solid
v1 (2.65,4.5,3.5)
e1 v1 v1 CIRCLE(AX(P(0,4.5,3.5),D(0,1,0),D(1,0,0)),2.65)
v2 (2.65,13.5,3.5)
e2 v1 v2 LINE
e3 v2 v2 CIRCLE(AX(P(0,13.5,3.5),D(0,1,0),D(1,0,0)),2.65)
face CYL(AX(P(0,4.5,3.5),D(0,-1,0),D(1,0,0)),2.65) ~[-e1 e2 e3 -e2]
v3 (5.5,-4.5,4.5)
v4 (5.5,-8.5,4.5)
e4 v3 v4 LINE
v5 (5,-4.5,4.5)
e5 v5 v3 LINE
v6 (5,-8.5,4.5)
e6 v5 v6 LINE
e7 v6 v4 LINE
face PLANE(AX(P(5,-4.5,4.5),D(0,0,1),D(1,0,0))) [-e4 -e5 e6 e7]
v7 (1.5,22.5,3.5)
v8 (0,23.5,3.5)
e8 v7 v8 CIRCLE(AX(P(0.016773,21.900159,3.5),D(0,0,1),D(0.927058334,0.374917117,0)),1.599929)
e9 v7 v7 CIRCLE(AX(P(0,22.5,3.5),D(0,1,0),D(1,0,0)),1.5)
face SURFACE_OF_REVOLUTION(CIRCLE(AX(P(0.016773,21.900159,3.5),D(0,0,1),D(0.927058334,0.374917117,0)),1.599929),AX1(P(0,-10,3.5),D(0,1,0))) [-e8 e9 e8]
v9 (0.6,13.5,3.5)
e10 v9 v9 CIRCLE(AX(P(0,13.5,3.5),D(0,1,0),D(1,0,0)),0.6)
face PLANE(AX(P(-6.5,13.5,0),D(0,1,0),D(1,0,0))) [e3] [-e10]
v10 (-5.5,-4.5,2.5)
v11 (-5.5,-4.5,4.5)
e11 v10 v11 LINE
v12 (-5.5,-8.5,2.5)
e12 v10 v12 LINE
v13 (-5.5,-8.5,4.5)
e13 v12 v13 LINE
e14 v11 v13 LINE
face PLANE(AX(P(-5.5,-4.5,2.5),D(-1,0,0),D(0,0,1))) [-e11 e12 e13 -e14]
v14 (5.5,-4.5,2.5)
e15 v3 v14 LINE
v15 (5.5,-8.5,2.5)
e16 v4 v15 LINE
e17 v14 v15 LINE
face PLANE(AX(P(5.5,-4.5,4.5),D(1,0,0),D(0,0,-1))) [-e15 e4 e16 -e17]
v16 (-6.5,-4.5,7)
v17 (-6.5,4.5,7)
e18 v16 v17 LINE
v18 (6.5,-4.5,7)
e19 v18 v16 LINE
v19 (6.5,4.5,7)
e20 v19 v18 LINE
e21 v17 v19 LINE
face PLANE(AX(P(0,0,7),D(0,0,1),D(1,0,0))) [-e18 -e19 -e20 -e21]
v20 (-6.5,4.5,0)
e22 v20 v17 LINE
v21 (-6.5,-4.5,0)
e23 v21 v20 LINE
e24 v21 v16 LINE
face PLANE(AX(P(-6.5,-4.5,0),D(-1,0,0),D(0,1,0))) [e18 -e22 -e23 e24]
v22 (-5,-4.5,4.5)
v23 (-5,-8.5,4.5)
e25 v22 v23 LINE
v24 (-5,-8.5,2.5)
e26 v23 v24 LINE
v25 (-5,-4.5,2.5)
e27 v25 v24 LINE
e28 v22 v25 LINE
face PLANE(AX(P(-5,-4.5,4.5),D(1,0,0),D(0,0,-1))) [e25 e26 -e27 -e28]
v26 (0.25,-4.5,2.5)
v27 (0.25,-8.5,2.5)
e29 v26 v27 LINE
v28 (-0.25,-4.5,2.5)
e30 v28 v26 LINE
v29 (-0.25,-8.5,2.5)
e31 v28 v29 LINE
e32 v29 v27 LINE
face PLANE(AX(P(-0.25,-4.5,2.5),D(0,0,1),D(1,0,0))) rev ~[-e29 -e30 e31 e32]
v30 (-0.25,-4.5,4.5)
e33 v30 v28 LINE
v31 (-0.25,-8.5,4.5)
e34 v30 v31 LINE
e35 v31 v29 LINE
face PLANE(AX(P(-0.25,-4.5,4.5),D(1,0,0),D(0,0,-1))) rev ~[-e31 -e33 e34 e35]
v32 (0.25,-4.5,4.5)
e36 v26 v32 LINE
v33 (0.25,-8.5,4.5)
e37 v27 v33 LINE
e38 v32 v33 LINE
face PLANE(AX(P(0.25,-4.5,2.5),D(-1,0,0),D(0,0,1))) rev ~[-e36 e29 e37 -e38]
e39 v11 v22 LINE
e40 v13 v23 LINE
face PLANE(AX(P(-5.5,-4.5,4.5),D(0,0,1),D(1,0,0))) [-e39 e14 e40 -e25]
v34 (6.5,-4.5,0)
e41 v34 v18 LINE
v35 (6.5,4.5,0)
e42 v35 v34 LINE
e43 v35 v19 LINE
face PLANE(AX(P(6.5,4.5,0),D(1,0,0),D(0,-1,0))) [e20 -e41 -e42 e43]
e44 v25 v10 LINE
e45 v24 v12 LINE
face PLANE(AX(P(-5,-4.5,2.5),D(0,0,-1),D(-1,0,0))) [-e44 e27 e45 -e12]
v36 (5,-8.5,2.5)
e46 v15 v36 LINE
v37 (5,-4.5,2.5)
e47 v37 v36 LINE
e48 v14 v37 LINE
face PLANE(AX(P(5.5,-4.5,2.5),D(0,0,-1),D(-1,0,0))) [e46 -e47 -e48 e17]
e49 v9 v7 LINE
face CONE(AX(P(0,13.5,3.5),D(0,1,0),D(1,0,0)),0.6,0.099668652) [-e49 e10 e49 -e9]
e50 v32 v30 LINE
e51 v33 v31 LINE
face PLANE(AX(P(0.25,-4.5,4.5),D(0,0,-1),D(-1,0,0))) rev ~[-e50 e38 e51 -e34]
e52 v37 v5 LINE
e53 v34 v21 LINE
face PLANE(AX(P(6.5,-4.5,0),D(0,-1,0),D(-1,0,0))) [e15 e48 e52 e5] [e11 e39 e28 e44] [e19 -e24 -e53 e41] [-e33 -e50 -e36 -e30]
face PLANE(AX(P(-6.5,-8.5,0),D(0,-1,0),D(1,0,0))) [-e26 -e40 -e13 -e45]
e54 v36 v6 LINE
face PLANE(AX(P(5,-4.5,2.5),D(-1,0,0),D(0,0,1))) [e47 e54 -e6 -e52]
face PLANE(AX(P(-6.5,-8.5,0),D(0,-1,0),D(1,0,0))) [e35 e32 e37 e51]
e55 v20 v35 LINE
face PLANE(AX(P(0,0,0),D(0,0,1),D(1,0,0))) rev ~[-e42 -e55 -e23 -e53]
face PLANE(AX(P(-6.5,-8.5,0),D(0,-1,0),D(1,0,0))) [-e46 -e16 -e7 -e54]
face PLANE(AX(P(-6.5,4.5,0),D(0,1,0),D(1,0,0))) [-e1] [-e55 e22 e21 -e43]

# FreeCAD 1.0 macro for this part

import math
import FreeCAD as App
import Part
import Sketcher


def add_polygon(sketch, points):
    """Adds a closed chain of lines whose ends are joined by coincident constraints."""
    first, n = sketch.GeometryCount, len(points)
    for a, b in zip(points, points[1:] + points[:1]):
        sketch.addGeometry(Part.LineSegment(App.Vector(*a, 0), App.Vector(*b, 0)), False)
    for i in range(n):
        sketch.addConstraint(Sketcher.Constraint("Coincident", first + i, 2, first + (i + 1) % n, 1))

doc = App.newDocument("Part")
body = doc.addObject("PartDesign::Body", "Body")

# Sketch on XY plane
sketch1 = body.newObject("Sketcher::SketchObject", "Sketch")
sketch1.AttachmentSupport = (doc.getObject("XY_Plane"), [""])
sketch1.MapMode = "FlatFace"
add_polygon(sketch1, [(6, 4), (-6, 4), (-6, -4), (6, -4)])  # lines 0-3
sketch1.addConstraint(Sketcher.Constraint("Horizontal", 0))
sketch1.addConstraint(Sketcher.Constraint("Vertical", 1))
sketch1.addConstraint(Sketcher.Constraint("Horizontal", 2))
sketch1.addConstraint(Sketcher.Constraint("Vertical", 3))
sketch1.addConstraint(Sketcher.Constraint("Symmetric", 0, 2, 2, 2, -1, 1))
sketch1.addConstraint(Sketcher.Constraint("DistanceX", 0, 2, 0, 1, 13.0))
sketch1.addConstraint(Sketcher.Constraint("DistanceY", 1, 2, 1, 1, 9.0))
pad1 = body.newObject("PartDesign::Pad", "Pad")
pad1.Profile = sketch1
pad1.Length = 7

# Sketch on XZ plane
sketch2 = body.newObject("Sketcher::SketchObject", "Sketch001")
sketch2.AttachmentSupport = (doc.getObject("XZ_Plane"), [""])
sketch2.MapMode = "FlatFace"
sketch2.AttachmentOffset = App.Placement(App.Vector(0, 0, 4.5), App.Rotation())
add_polygon(sketch2, [(-5, 4.5), (-5.5, 4.5), (-5.5, 2.5), (-5, 2.5)])  # lines 0-3
add_polygon(sketch2, [(5.5, 4.5), (5, 4.5), (5, 2.5), (5.5, 2.5)])  # lines 4-7
add_polygon(sketch2, [(-0.2, 4.5), (-0.2, 2.5), (0.2, 2.5), (0.2, 4.5)])  # lines 8-11
sketch2.addConstraint(Sketcher.Constraint("Horizontal", 0))
sketch2.addConstraint(Sketcher.Constraint("Vertical", 1))
sketch2.addConstraint(Sketcher.Constraint("Horizontal", 2))
sketch2.addConstraint(Sketcher.Constraint("Vertical", 3))
sketch2.addConstraint(Sketcher.Constraint("Horizontal", 4))
sketch2.addConstraint(Sketcher.Constraint("Vertical", 5))
sketch2.addConstraint(Sketcher.Constraint("Horizontal", 6))
sketch2.addConstraint(Sketcher.Constraint("Vertical", 7))
sketch2.addConstraint(Sketcher.Constraint("Vertical", 8))
sketch2.addConstraint(Sketcher.Constraint("Horizontal", 9))
sketch2.addConstraint(Sketcher.Constraint("Vertical", 10))
sketch2.addConstraint(Sketcher.Constraint("Horizontal", 11))
sketch2.addConstraint(Sketcher.Constraint("Symmetric", 3, 2, 4, 2, -2))
sketch2.addConstraint(Sketcher.Constraint("Symmetric", 1, 2, 6, 2, -2))
sketch2.addConstraint(Sketcher.Constraint("Horizontal", 6, 2, 8, 2))
sketch2.addConstraint(Sketcher.Constraint("Horizontal", 7, 2, 10, 2))
sketch2.addConstraint(Sketcher.Constraint("Equal", 6, 9))
sketch2.addConstraint(Sketcher.Constraint("DistanceY", 1, 2, 1, 1, 2.0))
sketch2.addConstraint(Sketcher.Constraint("DistanceX", 0, 2, 0, 1, 0.5))
sketch2.addConstraint(Sketcher.Constraint("DistanceY", -1, 1, 1, 2, 2.5))
sketch2.addConstraint(Sketcher.Constraint("DistanceX", 2, 2, -1, 1, 5.0))
sketch2.addConstraint(Sketcher.Constraint("DistanceX", 8, 2, -1, 1, 0.25))
pad2 = body.newObject("PartDesign::Pad", "Pad001")
pad2.Profile = sketch2
pad2.Length = 4

# Sketch on XZ plane
sketch3 = body.newObject("Sketcher::SketchObject", "Sketch002")
sketch3.AttachmentSupport = (doc.getObject("XZ_Plane"), [""])
sketch3.MapMode = "FlatFace"
sketch3.AttachmentOffset = App.Placement(App.Vector(0, 0, -4.5), App.Rotation())
sketch3.addGeometry(Part.Circle(App.Vector(0, 3.5, 0), App.Vector(0, 0, 1), 2.6), False)
sketch3.addConstraint(Sketcher.Constraint("PointOnObject", 0, 3, -2))
sketch3.addConstraint(Sketcher.Constraint("Diameter", 0, 5.3))
sketch3.addConstraint(Sketcher.Constraint("DistanceY", -1, 1, 0, 3, 3.5))
pad3 = body.newObject("PartDesign::Pad", "Pad002")
pad3.Profile = sketch3
pad3.Length = 9
pad3.Reversed = True

# Sketch on XZ plane
sketch4 = body.newObject("Sketcher::SketchObject", "Sketch003")
sketch4.AttachmentSupport = (doc.getObject("XZ_Plane"), [""])
sketch4.MapMode = "FlatFace"
sketch4.AttachmentOffset = App.Placement(App.Vector(0, 0, -13.5), App.Rotation())
add_polygon(sketch4, [(-0.5, 3.4), (-0.5, 3.5), (0.5, 3.5), (0.5, 3.4)])  # lines 0-3
sketch4.addConstraint(Sketcher.Constraint("Vertical", 0))
sketch4.addConstraint(Sketcher.Constraint("Horizontal", 1))
sketch4.addConstraint(Sketcher.Constraint("Vertical", 2))
sketch4.addConstraint(Sketcher.Constraint("Horizontal", 3))
sketch4.addConstraint(Sketcher.Constraint("DistanceY", 0, 1, 0, 2, 0.1))
sketch4.addConstraint(Sketcher.Constraint("DistanceX", 0, 2, -1, 1, 0.5))
sketch4.addConstraint(Sketcher.Constraint("DistanceX", -1, 1, 1, 2, 0.5))
sketch4.addConstraint(Sketcher.Constraint("DistanceY", -1, 1, 0, 2, 3.5))
pad4 = body.newObject("PartDesign::Pad", "Pad003")
pad4.Profile = sketch4
pad4.Length = 3
pad4.Reversed = True

# Sketch on XY plane
sketch5 = body.newObject("Sketcher::SketchObject", "Sketch004")
sketch5.AttachmentSupport = (doc.getObject("XY_Plane"), [""])
sketch5.MapMode = "FlatFace"
sketch5.AttachmentOffset = App.Placement(App.Vector(0, 0, 3.5), App.Rotation())
sketch5.addGeometry(Part.LineSegment(App.Vector(0, 13.5, 0), App.Vector(0.6, 13.5, 0)), False)
sketch5.addGeometry(Part.LineSegment(App.Vector(0.6, 13.5, 0), App.Vector(1.5, 22.5, 0)), False)
sketch5.addGeometry(Part.ArcOfCircle(Part.Circle(App.Vector(0, 21.9, 0), App.Vector(0, 0, 1), 1.6), math.radians(22), math.radians(91)), False)
sketch5.addGeometry(Part.LineSegment(App.Vector(0, 23.5, 0), App.Vector(0, 13.5, 0)), False)
sketch5.addConstraint(Sketcher.Constraint("Coincident", 0, 2, 1, 1))
sketch5.addConstraint(Sketcher.Constraint("Coincident", 1, 2, 2, 1))
sketch5.addConstraint(Sketcher.Constraint("Coincident", 2, 2, 3, 1))
sketch5.addConstraint(Sketcher.Constraint("Coincident", 3, 2, 0, 1))
sketch5.addConstraint(Sketcher.Constraint("Horizontal", 0))
sketch5.addConstraint(Sketcher.Constraint("Vertical", 3))
sketch5.addConstraint(Sketcher.Constraint("PointOnObject", 2, 2, -2))
sketch5.addConstraint(Sketcher.Constraint("Radius", 2, 1.6))
sketch5.addConstraint(Sketcher.Constraint("DistanceY", 3, 2, 3, 1, 10.0))
sketch5.addConstraint(Sketcher.Constraint("DistanceY", 1, 2, 2, 2, 1.0))
sketch5.addConstraint(Sketcher.Constraint("DistanceX", -1, 1, 1, 2, 1.5))
sketch5.addConstraint(Sketcher.Constraint("DistanceX", 0, 1, 0, 2, 0.6))
sketch5.addConstraint(Sketcher.Constraint("DistanceY", -1, 1, 2, 3, 21.9))
revolution = body.newObject("PartDesign::Revolution", "Revolution")
revolution.Profile = sketch5
revolution.ReferenceAxis = (sketch5, ["V_Axis"])
revolution.Angle = 360

doc.recompute()
